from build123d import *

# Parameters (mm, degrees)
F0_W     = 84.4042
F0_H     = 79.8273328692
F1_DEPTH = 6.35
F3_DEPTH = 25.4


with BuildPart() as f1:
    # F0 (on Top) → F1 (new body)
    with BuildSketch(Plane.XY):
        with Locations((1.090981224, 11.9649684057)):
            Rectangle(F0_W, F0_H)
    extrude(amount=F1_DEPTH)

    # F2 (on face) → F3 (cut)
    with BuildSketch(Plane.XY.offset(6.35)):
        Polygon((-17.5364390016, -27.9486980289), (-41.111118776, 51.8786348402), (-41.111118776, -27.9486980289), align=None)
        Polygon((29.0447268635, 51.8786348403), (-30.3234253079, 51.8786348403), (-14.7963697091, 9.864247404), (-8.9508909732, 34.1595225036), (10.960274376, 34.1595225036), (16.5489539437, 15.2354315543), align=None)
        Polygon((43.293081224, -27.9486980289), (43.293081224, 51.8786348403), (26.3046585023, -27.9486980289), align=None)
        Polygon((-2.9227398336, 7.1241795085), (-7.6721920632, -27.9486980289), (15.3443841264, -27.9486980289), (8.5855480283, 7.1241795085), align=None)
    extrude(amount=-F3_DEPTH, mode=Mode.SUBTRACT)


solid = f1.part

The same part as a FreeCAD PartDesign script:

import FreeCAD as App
import Part
import Sketcher
from FreeCAD import Vector
Q = App.Units.Quantity

doc = App.newDocument("Part")
body = doc.addObject("PartDesign::Body", "Body")

# Sketch on XY plane
sketch1 = body.newObject("Sketcher::SketchObject", "Sketch")
sketch1.AttachmentSupport = (doc.getObject("XY_Plane"), [""])
sketch1.MapMode = "FlatFace"
sketch1.addGeometry([
    Part.LineSegment(Vector(-41.111119, 51.878635, 0), Vector(-41.111119, -27.948698, 0)),
    Part.LineSegment(Vector(-41.111119, -27.948698, 0), Vector(43.293081, -27.948698, 0)),
    Part.LineSegment(Vector(43.293081, -27.948698, 0), Vector(43.293081, 51.878635, 0)),
    Part.LineSegment(Vector(43.293081, 51.878635, 0), Vector(-41.111119, 51.878635, 0)),
], False)
sketch1.addConstraint([
    Sketcher.Constraint("Coincident", 0, 2, 1, 1),
    Sketcher.Constraint("Coincident", 1, 2, 2, 1),
    Sketcher.Constraint("Coincident", 2, 2, 3, 1),
    Sketcher.Constraint("Coincident", 3, 2, 0, 1),
    Sketcher.Constraint("Vertical", 0),
    Sketcher.Constraint("Horizontal", 1),
    Sketcher.Constraint("Vertical", 2),
    Sketcher.Constraint("Horizontal", 3),
    Sketcher.Constraint("DistanceX", 1, 1, 1, 2, Q("3.323 in")),
    Sketcher.Constraint("DistanceY", 0, 2, -1, 1, 27.948698),
    Sketcher.Constraint("DistanceY", 0, 2, 0, 1, 79.827333),
    Sketcher.Constraint("DistanceX", 0, 2, -1, 1, 41.111119),
])
pad1 = body.newObject("PartDesign::Pad", "Pad")
pad1.Profile = sketch1
pad1.Length = Q("0.25 in")

# Sketch on XY plane
sketch2 = body.newObject("Sketcher::SketchObject", "Sketch001")
sketch2.AttachmentSupport = (doc.getObject("XY_Plane"), [""])
sketch2.MapMode = "FlatFace"
sketch2.AttachmentOffset = App.Placement(Vector(0, 0, 0.25 * 25.4), App.Rotation())
sketch2.addGeometry([
    Part.LineSegment(Vector(-17.536439, -27.948698, 0), Vector(-41.111119, 51.878635, 0)),  # 0
    Part.LineSegment(Vector(-41.111119, 51.878635, 0), Vector(-41.111119, -27.948698, 0)),  # 1
    Part.LineSegment(Vector(-41.111119, -27.948698, 0), Vector(-17.536439, -27.948698, 0)),  # 2
    Part.LineSegment(Vector(29.044727, 51.878635, 0), Vector(-30.323425, 51.878635, 0)),  # 3
    Part.LineSegment(Vector(-30.323425, 51.878635, 0), Vector(-14.79637, 9.864247, 0)),  # 4
    Part.LineSegment(Vector(-14.79637, 9.864247, 0), Vector(-8.950891, 34.159523, 0)),  # 5
    Part.LineSegment(Vector(-8.950891, 34.159523, 0), Vector(10.960274, 34.159523, 0)),  # 6
    Part.LineSegment(Vector(10.960274, 34.159523, 0), Vector(16.548954, 15.235432, 0)),  # 7
    Part.LineSegment(Vector(16.548954, 15.235432, 0), Vector(29.044727, 51.878635, 0)),  # 8
    Part.LineSegment(Vector(43.293081, -27.948698, 0), Vector(43.293081, 51.878635, 0)),  # 9
    Part.LineSegment(Vector(43.293081, 51.878635, 0), Vector(26.304659, -27.948698, 0)),  # 10
    Part.LineSegment(Vector(26.304659, -27.948698, 0), Vector(43.293081, -27.948698, 0)),  # 11
    Part.LineSegment(Vector(-2.92274, 7.12418, 0), Vector(-7.672192, -27.948698, 0)),  # 12
    Part.LineSegment(Vector(-7.672192, -27.948698, 0), Vector(15.344384, -27.948698, 0)),  # 13
    Part.LineSegment(Vector(15.344384, -27.948698, 0), Vector(8.585548, 7.12418, 0)),  # 14
    Part.LineSegment(Vector(8.585548, 7.12418, 0), Vector(-2.92274, 7.12418, 0)),  # 15
], False)
sketch2.addConstraint([
    Sketcher.Constraint("Coincident", 0, 2, 1, 1),
    Sketcher.Constraint("Coincident", 1, 2, 2, 1),
    Sketcher.Constraint("Coincident", 2, 2, 0, 1),
    Sketcher.Constraint("Coincident", 3, 2, 4, 1),
    Sketcher.Constraint("Coincident", 4, 2, 5, 1),
    Sketcher.Constraint("Coincident", 5, 2, 6, 1),
    Sketcher.Constraint("Coincident", 6, 2, 7, 1),
    Sketcher.Constraint("Coincident", 7, 2, 8, 1),
    Sketcher.Constraint("Coincident", 8, 2, 3, 1),
    Sketcher.Constraint("Coincident", 9, 2, 10, 1),
    Sketcher.Constraint("Coincident", 10, 2, 11, 1),
    Sketcher.Constraint("Coincident", 11, 2, 9, 1),
    Sketcher.Constraint("Coincident", 12, 2, 13, 1),
    Sketcher.Constraint("Coincident", 13, 2, 14, 1),
    Sketcher.Constraint("Coincident", 14, 2, 15, 1),
    Sketcher.Constraint("Coincident", 15, 2, 12, 1),
    Sketcher.Constraint("Vertical", 1),
    Sketcher.Constraint("Horizontal", 2),
    Sketcher.Constraint("Horizontal", 3),
    Sketcher.Constraint("Horizontal", 6),
    Sketcher.Constraint("Vertical", 9),
    Sketcher.Constraint("Horizontal", 11),
    Sketcher.Constraint("Horizontal", 13),
    Sketcher.Constraint("Horizontal", 15),
    Sketcher.Constraint("Parallel", 0, 7),
    Sketcher.Constraint("Horizontal", 0, 2, 3, 2),
    Sketcher.Constraint("Horizontal", 8, 2, 9, 2),
    Sketcher.Constraint("Horizontal", 2, 2, 10, 2),
    Sketcher.Constraint("Horizontal", 11, 2, 12, 2),
    Sketcher.Constraint("Angle", 8, Q("71.170007 deg")),
    Sketcher.Constraint("DistanceX", 2, 1, 2, 2, 23.57468),
    Sketcher.Constraint("DistanceY", 1, 2, -1, 1, 27.948698),
    Sketcher.Constraint("DistanceX", 3, 2, 6, 2, 41.2837),
    Sketcher.Constraint("Distance", 0, 83.235621),
    Sketcher.Constraint("Distance", 4, 44.79172),
    Sketcher.Constraint("Distance", 7, 19.732069),
    Sketcher.Constraint("Distance", 10, 81.615008),
    Sketcher.Constraint("DistanceX", 3, 2, 3, 1, 59.368152),
    Sketcher.Constraint("DistanceX", 6, 1, 6, 2, 19.911165),
    Sketcher.Constraint("DistanceX", 13, 1, 13, 2, 23.016576),
    Sketcher.Constraint("DistanceX", 15, 2, 15, 1, 11.508288),
    Sketcher.Constraint("DistanceX", 0, 2, -1, 1, 41.111119),
    Sketcher.Constraint("DistanceX", 4, 2, -1, 1, 14.79637),
    Sketcher.Constraint("DistanceX", 5, 2, -1, 1, 8.950891),
    Sketcher.Constraint("DistanceX", -1, 1, 9, 2, 43.293081),
    Sketcher.Constraint("DistanceX", -1, 1, 14, 2, 8.585548),
    Sketcher.Constraint("DistanceY", -1, 1, 14, 2, 7.12418),
    Sketcher.Constraint("DistanceX", 12, 2, 10, 2, 33.976851),
])
pocket1 = body.newObject("PartDesign::Pocket", "Pocket")
pocket1.Profile = sketch2
pocket1.Length = Q("1 in")

doc.recompute()
